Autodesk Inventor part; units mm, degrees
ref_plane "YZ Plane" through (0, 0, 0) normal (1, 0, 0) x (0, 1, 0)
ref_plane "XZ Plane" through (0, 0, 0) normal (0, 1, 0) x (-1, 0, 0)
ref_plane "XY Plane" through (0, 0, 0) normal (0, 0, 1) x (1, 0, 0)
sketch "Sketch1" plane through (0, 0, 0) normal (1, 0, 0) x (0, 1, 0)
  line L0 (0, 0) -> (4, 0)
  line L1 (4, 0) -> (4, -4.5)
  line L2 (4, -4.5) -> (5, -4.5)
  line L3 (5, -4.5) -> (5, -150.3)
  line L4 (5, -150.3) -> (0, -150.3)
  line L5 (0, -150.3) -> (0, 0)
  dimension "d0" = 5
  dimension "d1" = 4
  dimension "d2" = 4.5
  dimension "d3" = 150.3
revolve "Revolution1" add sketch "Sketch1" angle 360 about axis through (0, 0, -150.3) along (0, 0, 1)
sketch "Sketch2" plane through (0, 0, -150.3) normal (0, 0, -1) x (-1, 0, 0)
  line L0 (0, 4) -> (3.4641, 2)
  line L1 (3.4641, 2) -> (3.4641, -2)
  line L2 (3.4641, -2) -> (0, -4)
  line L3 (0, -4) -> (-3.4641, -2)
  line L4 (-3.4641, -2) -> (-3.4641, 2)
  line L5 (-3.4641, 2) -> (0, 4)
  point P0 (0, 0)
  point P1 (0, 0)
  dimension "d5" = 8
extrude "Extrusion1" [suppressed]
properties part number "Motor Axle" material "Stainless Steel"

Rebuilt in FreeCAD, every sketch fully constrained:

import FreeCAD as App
import Part
import Sketcher

V = App.Vector


def add_polygon(sketch, points):
    """Adds a closed chain of lines whose ends are joined by coincident constraints."""
    first, n = sketch.GeometryCount, len(points)
    for a, b in zip(points, points[1:] + points[:1]):
        sketch.addGeometry(Part.LineSegment(App.Vector(*a, 0), App.Vector(*b, 0)), False)
    for i in range(n):
        sketch.addConstraint(Sketcher.Constraint("Coincident", first + i, 2, first + (i + 1) % n, 1))

doc = App.newDocument("Part")
params = doc.addObject("Spreadsheet::Sheet", "Params")
for row, (alias, value) in enumerate([
    ("sketch1_width", "4 mm"),
    ("sketch1_width2", "5 mm"),
    ("sketch1_height", "150.3 mm"),
    ("sketch1_height2", "4.5 mm"),
    ("revolution_angle", "360 deg"),
], start=1):
    params.set(f"A{row}", alias)
    params.set(f"B{row}", "=" + value)
    params.setAlias(f"B{row}", alias)

body = doc.addObject("PartDesign::Body", "Body")

# Sketch on YZ plane
sketch1 = body.newObject("Sketcher::SketchObject", "Sketch")
sketch1.AttachmentSupport = (doc.getObject("YZ_Plane"), [""])
sketch1.MapMode = "FlatFace"
add_polygon(sketch1, [(4, 0), (0, 0), (0, -150.3), (5, -150.3), (5, -4.5), (4, -4.5)])  # lines 0-5
sketch1.addConstraint([
    Sketcher.Constraint("Horizontal", 0),
    Sketcher.Constraint("Vertical", 1),
    Sketcher.Constraint("Horizontal", 2),
    Sketcher.Constraint("Vertical", 3),
    Sketcher.Constraint("Horizontal", 4),
    Sketcher.Constraint("Vertical", 5),
    Sketcher.Constraint("Coincident", 0, 2, -1, 1),
    Sketcher.Constraint("DistanceX", 0, 2, 0, 1, 4.0),
    Sketcher.Constraint("DistanceX", 2, 1, 2, 2, 5.0),
    Sketcher.Constraint("DistanceY", 1, 2, 1, 1, 150.3),
    Sketcher.Constraint("DistanceY", 5, 1, 5, 2, 4.5),
])
sketch1.setExpression("Constraints[13]", "Params.sketch1_width")
sketch1.setExpression("Constraints[14]", "Params.sketch1_width2")
sketch1.setExpression("Constraints[15]", "Params.sketch1_height")
sketch1.setExpression("Constraints[16]", "Params.sketch1_height2")
revolution = body.newObject("PartDesign::Revolution", "Revolution")
revolution.Profile = sketch1
revolution.ReferenceAxis = (sketch1, ["V_Axis"])
revolution.setExpression("Angle", "Params.revolution_angle")

doc.recompute()
